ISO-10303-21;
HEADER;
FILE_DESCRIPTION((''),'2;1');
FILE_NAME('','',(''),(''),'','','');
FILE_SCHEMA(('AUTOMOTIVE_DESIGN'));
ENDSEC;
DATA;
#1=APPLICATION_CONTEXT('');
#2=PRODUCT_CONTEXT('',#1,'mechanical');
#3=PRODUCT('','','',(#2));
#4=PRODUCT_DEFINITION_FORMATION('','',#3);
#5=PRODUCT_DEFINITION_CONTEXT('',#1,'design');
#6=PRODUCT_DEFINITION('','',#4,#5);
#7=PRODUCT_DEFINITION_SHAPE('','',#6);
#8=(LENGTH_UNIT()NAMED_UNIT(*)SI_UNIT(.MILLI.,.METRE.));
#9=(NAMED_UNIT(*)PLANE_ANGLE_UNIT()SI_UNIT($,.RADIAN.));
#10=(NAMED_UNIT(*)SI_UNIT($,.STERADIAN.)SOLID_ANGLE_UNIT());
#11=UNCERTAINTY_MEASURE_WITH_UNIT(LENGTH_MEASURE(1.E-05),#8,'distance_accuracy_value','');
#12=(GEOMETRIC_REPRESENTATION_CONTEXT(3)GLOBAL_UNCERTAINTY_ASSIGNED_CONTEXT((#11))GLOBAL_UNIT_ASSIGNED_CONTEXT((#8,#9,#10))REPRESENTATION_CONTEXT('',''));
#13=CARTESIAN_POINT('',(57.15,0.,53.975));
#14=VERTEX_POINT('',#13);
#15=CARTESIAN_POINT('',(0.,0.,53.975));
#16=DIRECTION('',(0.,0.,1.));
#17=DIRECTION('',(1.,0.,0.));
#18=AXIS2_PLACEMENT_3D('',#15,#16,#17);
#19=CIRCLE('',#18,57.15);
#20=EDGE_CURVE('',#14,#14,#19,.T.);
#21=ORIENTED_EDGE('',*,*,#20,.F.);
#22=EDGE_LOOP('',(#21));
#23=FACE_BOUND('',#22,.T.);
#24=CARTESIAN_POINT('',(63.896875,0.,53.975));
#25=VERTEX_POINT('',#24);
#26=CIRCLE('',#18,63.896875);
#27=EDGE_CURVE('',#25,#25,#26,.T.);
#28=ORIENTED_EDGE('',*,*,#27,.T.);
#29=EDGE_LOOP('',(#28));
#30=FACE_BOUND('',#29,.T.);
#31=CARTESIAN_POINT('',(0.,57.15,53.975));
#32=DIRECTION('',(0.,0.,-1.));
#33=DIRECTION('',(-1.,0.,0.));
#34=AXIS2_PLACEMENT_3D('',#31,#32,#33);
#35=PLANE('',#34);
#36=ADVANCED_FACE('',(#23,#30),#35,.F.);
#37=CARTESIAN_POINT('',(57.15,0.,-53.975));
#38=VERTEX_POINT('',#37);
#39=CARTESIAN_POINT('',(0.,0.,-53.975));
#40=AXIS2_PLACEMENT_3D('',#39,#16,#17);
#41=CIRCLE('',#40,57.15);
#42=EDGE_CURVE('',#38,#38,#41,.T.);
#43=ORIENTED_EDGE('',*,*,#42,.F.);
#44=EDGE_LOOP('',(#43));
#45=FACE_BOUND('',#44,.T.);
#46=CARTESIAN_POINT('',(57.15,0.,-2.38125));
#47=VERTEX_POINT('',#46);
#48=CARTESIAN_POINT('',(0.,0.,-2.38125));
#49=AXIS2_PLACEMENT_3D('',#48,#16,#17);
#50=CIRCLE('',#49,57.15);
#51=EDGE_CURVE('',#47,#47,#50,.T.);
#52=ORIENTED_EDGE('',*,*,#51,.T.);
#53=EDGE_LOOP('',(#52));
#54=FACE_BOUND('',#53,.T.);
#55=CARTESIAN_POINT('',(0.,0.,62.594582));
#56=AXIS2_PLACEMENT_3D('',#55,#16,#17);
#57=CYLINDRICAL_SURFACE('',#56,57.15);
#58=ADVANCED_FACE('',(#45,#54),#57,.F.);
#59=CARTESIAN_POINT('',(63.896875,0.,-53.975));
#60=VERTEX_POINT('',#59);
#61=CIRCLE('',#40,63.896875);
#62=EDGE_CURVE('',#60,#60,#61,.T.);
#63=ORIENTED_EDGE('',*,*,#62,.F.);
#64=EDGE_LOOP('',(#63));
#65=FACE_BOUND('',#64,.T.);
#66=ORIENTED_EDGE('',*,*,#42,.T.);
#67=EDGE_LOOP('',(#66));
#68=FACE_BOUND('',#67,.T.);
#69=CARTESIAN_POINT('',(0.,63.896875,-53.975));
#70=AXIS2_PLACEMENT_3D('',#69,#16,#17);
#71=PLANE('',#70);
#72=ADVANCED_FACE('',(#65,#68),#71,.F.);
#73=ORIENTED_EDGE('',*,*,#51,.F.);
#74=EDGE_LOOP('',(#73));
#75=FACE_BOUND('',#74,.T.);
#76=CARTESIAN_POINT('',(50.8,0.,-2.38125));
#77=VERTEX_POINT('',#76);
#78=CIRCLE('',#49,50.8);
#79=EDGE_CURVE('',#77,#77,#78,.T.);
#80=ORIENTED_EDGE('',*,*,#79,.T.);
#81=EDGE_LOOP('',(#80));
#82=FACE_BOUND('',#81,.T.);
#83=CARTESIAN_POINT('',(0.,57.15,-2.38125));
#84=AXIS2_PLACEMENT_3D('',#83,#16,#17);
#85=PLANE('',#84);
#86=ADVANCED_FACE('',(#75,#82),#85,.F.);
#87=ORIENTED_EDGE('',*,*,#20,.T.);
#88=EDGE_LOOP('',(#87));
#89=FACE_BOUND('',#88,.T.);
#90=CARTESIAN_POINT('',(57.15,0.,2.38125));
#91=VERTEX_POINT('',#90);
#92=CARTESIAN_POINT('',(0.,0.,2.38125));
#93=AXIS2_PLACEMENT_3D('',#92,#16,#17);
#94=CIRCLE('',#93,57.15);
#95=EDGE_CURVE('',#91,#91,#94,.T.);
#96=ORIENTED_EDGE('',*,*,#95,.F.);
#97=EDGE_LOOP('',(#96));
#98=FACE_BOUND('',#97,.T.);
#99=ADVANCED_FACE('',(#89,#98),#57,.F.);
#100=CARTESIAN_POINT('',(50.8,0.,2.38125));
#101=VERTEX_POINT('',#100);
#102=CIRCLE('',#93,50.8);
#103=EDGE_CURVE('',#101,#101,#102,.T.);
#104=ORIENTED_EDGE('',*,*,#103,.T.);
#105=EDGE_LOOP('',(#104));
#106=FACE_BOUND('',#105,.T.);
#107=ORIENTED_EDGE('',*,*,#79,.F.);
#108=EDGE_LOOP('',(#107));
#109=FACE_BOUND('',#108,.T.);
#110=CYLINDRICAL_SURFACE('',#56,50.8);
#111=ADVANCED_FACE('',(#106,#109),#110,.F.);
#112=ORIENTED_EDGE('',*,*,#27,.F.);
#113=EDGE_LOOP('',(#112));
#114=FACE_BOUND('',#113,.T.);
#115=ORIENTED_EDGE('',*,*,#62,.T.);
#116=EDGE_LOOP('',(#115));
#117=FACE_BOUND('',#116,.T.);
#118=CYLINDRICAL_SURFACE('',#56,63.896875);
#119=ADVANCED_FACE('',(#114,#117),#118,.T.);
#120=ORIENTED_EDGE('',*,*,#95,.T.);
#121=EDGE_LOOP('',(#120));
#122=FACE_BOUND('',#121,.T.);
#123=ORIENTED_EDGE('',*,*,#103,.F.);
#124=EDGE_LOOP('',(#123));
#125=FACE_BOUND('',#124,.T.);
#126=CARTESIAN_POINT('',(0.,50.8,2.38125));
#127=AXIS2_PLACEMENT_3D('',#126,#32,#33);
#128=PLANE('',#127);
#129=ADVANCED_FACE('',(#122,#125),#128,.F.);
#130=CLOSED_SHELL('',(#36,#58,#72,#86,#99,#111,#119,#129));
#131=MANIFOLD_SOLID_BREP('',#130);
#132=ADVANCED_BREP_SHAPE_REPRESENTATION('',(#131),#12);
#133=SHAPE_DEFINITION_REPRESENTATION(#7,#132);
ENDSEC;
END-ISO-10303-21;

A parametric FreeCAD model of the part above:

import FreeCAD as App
import Part
import Sketcher
Q = App.Units.Quantity

doc = App.newDocument("Part")
params = doc.addObject("Spreadsheet::Sheet", "Params")
for row, (alias, value) in enumerate([
    ("sketch1_width", "0.25 in"),
    ("sketch1_height", "4.25 in"),
    ("sketch1_width2", "0.265625 in"),
    ("sketch1_height2", "2.03125 in"),
    ("revolution_angle", "360 deg"),
], start=1):
    params.set(f"A{row}", alias)
    params.set(f"B{row}", "=" + value)
    params.setAlias(f"B{row}", alias)

body = doc.addObject("PartDesign::Body", "Body")

# Sketch on YZ plane
sketch1 = body.newObject("Sketcher::SketchObject", "Sketch")
sketch1.AttachmentSupport = (doc.getObject("YZ_Plane"), [""])
sketch1.MapMode = "FlatFace"
sketch1.addGeometry([
    Part.LineSegment(App.Vector(63.9, -54, 0), App.Vector(63.9, 54, 0)),  # 0
    Part.LineSegment(App.Vector(63.9, 54, 0), App.Vector(57.1, 54, 0)),  # 1
    Part.LineSegment(App.Vector(57.1, 54, 0), App.Vector(57.1, 2.4, 0)),  # 2
    Part.LineSegment(App.Vector(57.1, 2.4, 0), App.Vector(50.8, 2.4, 0)),  # 3
    Part.LineSegment(App.Vector(50.8, 2.4, 0), App.Vector(50.8, -2.4, 0)),  # 4
    Part.LineSegment(App.Vector(50.8, -2.4, 0), App.Vector(57.1, -2.4, 0)),  # 5
    Part.LineSegment(App.Vector(57.1, -2.4, 0), App.Vector(57.1, -54, 0)),  # 6
    Part.LineSegment(App.Vector(57.1, -54, 0), App.Vector(63.9, -54, 0)),  # 7
], False)
sketch1.addConstraint([
    Sketcher.Constraint("Coincident", 0, 2, 1, 1),
    Sketcher.Constraint("Coincident", 1, 2, 2, 1),
    Sketcher.Constraint("Coincident", 2, 2, 3, 1),
    Sketcher.Constraint("Coincident", 3, 2, 4, 1),
    Sketcher.Constraint("Coincident", 4, 2, 5, 1),
    Sketcher.Constraint("Coincident", 5, 2, 6, 1),
    Sketcher.Constraint("Coincident", 6, 2, 7, 1),
    Sketcher.Constraint("Coincident", 7, 2, 0, 1),
    Sketcher.Constraint("Vertical", 0),
    Sketcher.Constraint("Horizontal", 1),
    Sketcher.Constraint("Vertical", 2),
    Sketcher.Constraint("Horizontal", 3),
    Sketcher.Constraint("Vertical", 4),
    Sketcher.Constraint("Horizontal", 5),
    Sketcher.Constraint("Vertical", 6),
    Sketcher.Constraint("Horizontal", 7),
    Sketcher.Constraint("Symmetric", 2, 2, 5, 2, -1),
    Sketcher.Constraint("Equal", 2, 6),
    Sketcher.Constraint("DistanceX", -1, 1, 3, 2, Q("2 in")),
    Sketcher.Constraint("DistanceX", 3, 2, 3, 1, Q("0.25 in")),
    Sketcher.Constraint("DistanceY", 0, 1, 0, 2, Q("4.25 in")),
    Sketcher.Constraint("DistanceX", 1, 2, 1, 1, Q("0.265625 in")),
    Sketcher.Constraint("DistanceY", 2, 2, 2, 1, Q("2.03125 in")),
])
sketch1.setExpression("Constraints[19]", "Params.sketch1_width")
sketch1.setExpression("Constraints[20]", "Params.sketch1_height")
sketch1.setExpression("Constraints[21]", "Params.sketch1_width2")
sketch1.setExpression("Constraints[22]", "Params.sketch1_height2")
revolution = body.newObject("PartDesign::Revolution", "Revolution")
revolution.Profile = sketch1
revolution.ReferenceAxis = (sketch1, ["V_Axis"])
revolution.setExpression("Angle", "Params.revolution_angle")

doc.recompute()
